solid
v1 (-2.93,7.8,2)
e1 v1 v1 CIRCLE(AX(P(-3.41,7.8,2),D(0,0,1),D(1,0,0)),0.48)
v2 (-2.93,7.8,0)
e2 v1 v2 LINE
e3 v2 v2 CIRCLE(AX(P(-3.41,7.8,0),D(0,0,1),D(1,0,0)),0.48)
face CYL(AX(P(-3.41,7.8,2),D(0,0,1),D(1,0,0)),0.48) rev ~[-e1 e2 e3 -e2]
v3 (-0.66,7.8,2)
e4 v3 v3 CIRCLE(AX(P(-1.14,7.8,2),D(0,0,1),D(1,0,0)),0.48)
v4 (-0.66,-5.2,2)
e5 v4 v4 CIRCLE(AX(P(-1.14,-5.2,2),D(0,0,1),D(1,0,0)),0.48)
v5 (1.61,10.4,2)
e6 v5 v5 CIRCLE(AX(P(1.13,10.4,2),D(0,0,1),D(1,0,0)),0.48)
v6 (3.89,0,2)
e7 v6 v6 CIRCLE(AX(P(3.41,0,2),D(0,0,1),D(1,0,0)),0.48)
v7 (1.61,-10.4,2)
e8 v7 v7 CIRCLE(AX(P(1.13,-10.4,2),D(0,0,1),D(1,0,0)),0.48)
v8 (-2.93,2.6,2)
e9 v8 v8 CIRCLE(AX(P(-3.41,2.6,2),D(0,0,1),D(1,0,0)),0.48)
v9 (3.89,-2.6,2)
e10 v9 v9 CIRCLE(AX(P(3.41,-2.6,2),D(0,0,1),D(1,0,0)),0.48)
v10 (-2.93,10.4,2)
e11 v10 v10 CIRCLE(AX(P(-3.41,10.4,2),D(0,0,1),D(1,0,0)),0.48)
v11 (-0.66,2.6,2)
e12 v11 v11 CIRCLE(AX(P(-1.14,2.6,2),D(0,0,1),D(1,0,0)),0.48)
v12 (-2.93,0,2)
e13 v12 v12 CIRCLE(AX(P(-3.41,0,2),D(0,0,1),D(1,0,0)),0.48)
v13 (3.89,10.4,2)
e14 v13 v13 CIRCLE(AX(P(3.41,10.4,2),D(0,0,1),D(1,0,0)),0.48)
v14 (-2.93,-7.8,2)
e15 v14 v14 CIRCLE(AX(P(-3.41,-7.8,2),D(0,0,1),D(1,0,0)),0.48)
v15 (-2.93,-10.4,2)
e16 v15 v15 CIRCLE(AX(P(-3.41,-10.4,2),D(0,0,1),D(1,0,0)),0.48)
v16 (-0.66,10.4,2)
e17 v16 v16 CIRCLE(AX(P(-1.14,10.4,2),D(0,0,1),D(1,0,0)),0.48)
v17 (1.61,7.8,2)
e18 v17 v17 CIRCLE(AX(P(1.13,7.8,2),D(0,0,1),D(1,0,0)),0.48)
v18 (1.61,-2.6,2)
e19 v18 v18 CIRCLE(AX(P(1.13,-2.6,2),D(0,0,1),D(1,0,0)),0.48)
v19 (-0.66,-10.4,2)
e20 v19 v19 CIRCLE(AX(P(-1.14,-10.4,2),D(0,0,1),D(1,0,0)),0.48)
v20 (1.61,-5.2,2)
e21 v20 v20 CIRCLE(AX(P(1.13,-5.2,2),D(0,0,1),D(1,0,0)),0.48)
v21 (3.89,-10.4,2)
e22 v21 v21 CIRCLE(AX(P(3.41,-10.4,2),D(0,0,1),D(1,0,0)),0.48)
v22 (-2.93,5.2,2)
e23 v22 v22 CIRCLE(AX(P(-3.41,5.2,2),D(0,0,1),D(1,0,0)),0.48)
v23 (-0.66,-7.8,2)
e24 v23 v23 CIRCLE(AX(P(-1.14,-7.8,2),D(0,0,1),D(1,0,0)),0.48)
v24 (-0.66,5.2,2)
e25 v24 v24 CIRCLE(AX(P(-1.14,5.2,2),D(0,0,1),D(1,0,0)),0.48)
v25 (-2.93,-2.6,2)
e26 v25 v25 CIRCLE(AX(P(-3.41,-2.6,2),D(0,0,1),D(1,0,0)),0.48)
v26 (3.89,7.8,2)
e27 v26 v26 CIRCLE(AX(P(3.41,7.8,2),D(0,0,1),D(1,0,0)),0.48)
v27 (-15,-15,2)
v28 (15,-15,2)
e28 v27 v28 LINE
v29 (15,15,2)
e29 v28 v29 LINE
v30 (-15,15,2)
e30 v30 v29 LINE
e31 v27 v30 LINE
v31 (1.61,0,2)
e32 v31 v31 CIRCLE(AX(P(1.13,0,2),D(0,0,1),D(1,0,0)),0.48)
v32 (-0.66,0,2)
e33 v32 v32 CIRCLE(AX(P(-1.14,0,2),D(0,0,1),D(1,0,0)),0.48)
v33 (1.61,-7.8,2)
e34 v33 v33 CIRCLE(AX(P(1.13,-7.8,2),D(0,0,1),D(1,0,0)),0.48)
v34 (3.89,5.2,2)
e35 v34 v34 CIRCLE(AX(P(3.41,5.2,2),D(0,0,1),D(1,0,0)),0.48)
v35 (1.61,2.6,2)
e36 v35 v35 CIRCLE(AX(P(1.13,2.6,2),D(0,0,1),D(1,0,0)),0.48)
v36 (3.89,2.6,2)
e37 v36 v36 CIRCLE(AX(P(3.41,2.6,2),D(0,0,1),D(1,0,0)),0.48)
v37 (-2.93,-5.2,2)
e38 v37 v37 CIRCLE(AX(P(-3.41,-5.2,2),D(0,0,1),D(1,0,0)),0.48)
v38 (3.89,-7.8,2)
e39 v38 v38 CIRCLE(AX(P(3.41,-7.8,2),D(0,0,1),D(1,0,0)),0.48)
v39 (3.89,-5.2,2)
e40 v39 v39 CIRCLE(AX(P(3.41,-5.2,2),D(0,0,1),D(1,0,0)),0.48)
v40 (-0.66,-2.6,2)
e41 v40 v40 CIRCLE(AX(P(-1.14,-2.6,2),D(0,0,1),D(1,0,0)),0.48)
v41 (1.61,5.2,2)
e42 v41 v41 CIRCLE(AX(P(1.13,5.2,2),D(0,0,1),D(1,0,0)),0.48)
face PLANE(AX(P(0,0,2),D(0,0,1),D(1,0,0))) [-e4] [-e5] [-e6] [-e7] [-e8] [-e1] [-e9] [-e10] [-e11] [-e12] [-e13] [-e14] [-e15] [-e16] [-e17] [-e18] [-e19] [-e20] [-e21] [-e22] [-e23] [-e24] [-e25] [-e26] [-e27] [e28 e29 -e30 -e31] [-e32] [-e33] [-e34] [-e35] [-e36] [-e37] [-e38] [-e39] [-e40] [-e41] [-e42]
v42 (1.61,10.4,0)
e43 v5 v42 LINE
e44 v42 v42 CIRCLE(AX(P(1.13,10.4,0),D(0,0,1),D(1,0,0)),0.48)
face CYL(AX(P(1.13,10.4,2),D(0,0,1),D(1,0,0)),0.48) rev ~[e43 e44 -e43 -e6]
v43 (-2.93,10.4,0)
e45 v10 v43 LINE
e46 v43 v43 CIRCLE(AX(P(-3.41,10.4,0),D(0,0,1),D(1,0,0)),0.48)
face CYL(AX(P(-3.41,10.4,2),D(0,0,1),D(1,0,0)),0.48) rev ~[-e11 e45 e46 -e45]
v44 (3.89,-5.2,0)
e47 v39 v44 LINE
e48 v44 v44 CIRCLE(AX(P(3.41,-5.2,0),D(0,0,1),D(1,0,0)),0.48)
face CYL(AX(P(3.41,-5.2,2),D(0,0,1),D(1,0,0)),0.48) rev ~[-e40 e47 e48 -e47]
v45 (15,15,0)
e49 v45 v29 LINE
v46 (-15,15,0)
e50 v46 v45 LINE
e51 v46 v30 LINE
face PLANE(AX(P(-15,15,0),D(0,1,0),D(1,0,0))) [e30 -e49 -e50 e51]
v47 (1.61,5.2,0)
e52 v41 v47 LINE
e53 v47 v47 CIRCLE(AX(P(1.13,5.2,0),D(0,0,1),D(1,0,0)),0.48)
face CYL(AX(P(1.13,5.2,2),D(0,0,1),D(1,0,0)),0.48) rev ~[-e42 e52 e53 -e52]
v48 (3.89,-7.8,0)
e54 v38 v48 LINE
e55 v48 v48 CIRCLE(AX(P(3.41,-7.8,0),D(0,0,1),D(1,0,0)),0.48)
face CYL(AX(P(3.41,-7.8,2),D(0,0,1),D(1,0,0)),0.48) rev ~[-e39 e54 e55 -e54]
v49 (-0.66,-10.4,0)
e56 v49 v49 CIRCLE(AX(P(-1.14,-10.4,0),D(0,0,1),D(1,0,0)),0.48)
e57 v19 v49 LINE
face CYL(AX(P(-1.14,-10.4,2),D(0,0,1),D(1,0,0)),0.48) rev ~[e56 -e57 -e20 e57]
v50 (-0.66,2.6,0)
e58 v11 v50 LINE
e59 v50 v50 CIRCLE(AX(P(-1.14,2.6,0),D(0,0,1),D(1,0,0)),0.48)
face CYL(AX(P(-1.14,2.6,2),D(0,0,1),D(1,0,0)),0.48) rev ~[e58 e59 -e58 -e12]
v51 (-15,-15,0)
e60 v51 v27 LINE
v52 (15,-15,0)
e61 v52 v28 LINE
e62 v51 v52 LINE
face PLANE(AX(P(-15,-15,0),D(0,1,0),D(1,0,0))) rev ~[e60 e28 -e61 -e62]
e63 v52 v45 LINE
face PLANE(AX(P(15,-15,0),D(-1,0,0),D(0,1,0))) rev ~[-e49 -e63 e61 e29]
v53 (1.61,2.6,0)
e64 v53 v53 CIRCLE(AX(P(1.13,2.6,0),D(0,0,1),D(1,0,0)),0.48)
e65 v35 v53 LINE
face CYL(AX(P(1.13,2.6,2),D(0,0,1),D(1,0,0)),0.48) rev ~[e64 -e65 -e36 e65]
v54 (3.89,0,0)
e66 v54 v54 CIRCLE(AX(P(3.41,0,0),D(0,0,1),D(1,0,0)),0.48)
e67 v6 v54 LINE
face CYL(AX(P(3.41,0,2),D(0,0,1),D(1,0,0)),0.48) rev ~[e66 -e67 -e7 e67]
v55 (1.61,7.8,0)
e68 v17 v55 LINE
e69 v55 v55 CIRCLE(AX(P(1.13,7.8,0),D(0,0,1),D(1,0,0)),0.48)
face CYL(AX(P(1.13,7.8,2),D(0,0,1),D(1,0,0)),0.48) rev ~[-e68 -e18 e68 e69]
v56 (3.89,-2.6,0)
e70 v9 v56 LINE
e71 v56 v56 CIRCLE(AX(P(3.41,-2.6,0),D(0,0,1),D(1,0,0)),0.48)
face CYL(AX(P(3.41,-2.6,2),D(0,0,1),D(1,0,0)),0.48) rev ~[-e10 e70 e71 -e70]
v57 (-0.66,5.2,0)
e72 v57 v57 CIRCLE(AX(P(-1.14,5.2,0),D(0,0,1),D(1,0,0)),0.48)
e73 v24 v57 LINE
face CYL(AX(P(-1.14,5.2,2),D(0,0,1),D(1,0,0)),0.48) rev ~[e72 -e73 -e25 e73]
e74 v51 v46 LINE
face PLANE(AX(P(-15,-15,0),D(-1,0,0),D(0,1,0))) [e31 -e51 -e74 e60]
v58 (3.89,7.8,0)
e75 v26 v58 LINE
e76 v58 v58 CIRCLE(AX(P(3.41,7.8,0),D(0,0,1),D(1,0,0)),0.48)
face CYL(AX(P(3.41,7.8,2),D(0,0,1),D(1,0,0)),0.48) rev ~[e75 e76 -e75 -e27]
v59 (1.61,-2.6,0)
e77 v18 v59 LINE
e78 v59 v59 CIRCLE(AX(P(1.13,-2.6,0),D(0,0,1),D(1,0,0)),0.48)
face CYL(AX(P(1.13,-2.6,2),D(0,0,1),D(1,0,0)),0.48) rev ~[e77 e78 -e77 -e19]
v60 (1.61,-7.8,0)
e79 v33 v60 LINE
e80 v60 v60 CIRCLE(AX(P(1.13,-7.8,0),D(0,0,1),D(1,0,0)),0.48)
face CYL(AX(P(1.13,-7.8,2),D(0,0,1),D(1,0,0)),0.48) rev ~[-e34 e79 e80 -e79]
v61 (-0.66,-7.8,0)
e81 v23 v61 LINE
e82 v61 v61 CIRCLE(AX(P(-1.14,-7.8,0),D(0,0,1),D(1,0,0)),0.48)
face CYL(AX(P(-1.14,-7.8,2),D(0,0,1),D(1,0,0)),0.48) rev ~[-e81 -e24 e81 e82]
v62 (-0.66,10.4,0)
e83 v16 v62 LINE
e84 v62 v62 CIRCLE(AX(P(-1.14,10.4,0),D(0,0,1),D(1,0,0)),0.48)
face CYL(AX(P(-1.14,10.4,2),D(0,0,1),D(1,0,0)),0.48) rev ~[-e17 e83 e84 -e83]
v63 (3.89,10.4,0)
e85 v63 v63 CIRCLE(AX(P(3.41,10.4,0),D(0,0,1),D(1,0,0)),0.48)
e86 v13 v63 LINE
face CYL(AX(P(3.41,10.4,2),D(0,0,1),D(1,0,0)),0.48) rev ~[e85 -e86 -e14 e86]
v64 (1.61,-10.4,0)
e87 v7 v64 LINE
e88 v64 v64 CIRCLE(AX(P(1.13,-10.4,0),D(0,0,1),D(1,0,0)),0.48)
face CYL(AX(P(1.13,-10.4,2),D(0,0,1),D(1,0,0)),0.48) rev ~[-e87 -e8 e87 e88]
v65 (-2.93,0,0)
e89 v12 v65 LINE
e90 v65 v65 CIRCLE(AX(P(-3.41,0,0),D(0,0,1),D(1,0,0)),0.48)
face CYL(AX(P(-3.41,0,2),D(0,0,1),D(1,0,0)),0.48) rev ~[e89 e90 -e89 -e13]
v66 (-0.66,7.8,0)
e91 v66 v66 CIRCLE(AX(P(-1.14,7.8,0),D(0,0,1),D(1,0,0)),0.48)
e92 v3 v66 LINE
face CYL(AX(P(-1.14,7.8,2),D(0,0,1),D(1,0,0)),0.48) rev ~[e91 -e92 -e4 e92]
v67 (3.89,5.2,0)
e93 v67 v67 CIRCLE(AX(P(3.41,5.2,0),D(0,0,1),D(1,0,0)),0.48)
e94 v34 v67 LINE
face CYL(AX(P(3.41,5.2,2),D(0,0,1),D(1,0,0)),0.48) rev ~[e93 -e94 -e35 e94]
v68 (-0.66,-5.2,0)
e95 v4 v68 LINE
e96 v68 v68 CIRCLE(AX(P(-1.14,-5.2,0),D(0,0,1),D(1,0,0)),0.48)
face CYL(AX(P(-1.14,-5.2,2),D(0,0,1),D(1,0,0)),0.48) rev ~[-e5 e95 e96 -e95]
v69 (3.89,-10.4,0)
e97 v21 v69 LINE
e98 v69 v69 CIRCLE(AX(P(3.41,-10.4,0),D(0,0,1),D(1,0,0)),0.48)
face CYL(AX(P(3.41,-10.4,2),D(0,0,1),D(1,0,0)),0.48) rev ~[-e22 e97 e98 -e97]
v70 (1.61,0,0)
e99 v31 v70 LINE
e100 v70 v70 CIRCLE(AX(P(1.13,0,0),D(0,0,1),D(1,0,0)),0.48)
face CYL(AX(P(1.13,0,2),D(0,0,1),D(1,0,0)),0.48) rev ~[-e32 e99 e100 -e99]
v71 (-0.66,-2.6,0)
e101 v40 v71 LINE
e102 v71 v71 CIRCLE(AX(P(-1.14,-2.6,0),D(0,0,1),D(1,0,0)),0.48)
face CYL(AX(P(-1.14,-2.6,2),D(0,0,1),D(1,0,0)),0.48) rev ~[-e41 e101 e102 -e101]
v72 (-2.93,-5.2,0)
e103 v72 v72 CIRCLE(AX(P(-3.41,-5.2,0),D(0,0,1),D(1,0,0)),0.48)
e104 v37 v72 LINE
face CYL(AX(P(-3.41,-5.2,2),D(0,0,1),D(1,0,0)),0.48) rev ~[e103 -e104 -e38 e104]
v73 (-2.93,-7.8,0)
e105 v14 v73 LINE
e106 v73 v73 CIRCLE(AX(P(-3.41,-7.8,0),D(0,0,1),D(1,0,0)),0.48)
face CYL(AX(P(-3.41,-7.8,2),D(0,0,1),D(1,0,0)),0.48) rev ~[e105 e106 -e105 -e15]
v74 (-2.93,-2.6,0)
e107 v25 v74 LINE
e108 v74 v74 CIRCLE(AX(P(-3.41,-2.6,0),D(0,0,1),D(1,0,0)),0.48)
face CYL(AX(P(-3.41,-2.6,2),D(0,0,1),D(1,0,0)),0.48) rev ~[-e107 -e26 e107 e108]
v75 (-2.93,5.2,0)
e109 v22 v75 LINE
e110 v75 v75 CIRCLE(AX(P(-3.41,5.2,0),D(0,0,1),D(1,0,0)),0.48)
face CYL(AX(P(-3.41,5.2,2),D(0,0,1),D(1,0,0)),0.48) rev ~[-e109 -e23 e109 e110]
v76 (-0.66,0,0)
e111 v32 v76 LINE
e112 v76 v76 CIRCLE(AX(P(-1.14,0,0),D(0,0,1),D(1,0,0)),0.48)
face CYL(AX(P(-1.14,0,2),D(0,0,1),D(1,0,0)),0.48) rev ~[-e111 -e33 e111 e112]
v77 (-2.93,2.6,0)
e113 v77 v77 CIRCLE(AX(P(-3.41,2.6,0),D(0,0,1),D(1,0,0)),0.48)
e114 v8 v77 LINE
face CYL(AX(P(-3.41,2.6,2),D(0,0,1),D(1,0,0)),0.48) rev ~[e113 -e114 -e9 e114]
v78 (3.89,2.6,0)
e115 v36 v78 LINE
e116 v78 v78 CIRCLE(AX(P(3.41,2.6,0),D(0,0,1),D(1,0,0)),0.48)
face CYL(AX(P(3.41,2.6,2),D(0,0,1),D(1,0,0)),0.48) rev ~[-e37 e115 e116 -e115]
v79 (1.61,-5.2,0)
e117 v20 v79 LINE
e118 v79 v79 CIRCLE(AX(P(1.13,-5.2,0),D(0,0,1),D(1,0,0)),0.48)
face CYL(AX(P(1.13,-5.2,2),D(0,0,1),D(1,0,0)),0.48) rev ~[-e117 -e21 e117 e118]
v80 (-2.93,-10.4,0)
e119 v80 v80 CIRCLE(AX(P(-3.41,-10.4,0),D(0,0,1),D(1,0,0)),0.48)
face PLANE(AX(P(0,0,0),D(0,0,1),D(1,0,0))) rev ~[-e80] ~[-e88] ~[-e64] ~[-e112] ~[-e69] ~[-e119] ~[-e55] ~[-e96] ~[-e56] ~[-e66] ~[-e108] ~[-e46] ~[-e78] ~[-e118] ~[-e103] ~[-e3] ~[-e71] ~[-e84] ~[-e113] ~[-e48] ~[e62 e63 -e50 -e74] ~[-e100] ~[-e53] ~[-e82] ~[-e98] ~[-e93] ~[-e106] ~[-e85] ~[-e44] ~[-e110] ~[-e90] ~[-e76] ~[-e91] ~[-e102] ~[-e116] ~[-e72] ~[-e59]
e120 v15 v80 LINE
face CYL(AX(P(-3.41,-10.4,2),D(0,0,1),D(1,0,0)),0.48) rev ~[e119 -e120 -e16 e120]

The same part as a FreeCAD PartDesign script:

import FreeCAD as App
import Part
import Sketcher
from FreeCAD import Vector

doc = App.newDocument("Part")
body = doc.addObject("PartDesign::Body", "Body")

sketch1 = doc.addObject("Sketcher::SketchObject", "Sketch")
body.addObject(sketch1)
sketch1.AttachmentSupport = (doc.XY_Plane, [""])
sketch1.MapMode = "FlatFace"
sketch1.addGeometry([
    Part.LineSegment(Vector(-15, 15, 0), Vector(-15, -15, 0)),
    Part.LineSegment(Vector(-15, -15, 0), Vector(15, -15, 0)),
    Part.LineSegment(Vector(15, -15, 0), Vector(15, 15, 0)),
    Part.LineSegment(Vector(15, 15, 0), Vector(-15, 15, 0)),
], False)
sketch1.addConstraint([
    Sketcher.Constraint("Coincident", 0, 2, 1, 1),
    Sketcher.Constraint("Coincident", 1, 2, 2, 1),
    Sketcher.Constraint("Coincident", 2, 2, 3, 1),
    Sketcher.Constraint("Coincident", 3, 2, 0, 1),
    Sketcher.Constraint("Vertical", 0),
    Sketcher.Constraint("Horizontal", 1),
    Sketcher.Constraint("Vertical", 2),
    Sketcher.Constraint("Horizontal", 3),
    Sketcher.Constraint("Symmetric", 0, 2, 2, 2, -1, 1),
    Sketcher.Constraint("Equal", 3, 0),
    Sketcher.Constraint("DistanceX", 1, 1, 1, 2, 30.0),
])
pad1 = doc.addObject("PartDesign::Pad", "Pad")
body.addObject(pad1)
pad1.Profile = sketch1
pad1.Length = 2

sketch2 = doc.addObject("Sketcher::SketchObject", "Sketch001")
body.addObject(sketch2)
sketch2.AttachmentSupport = (doc.XY_Plane, [""])
sketch2.MapMode = "FlatFace"
sketch2.AttachmentOffset = App.Placement(Vector(0, 0, 2), App.Rotation())
sketch2.addGeometry([
    Part.Circle(Vector(-3.41, -10.4, 0), Vector(0, 0, 1), 0.48),
    Part.Circle(Vector(-3.41, -7.8, 0), Vector(0, 0, 1), 0.48),
    Part.Circle(Vector(-3.41, -5.2, 0), Vector(0, 0, 1), 0.48),
    Part.Circle(Vector(-3.41, -2.6, 0), Vector(0, 0, 1), 0.48),
    Part.Circle(Vector(-3.41, 0, 0), Vector(0, 0, 1), 0.48),
    Part.Circle(Vector(-3.41, 2.6, 0), Vector(0, 0, 1), 0.48),
    Part.Circle(Vector(-3.41, 5.2, 0), Vector(0, 0, 1), 0.48),
    Part.Circle(Vector(-3.41, 7.8, 0), Vector(0, 0, 1), 0.48),
    Part.Circle(Vector(-3.41, 10.4, 0), Vector(0, 0, 1), 0.48),
    Part.Circle(Vector(-1.14, -10.4, 0), Vector(0, 0, 1), 0.48),
    Part.Circle(Vector(-1.14, -7.8, 0), Vector(0, 0, 1), 0.48),
    Part.Circle(Vector(-1.14, -5.2, 0), Vector(0, 0, 1), 0.48),
    Part.Circle(Vector(-1.14, -2.6, 0), Vector(0, 0, 1), 0.48),
    Part.Circle(Vector(-1.14, 0, 0), Vector(0, 0, 1), 0.48),
    Part.Circle(Vector(-1.14, 2.6, 0), Vector(0, 0, 1), 0.48),
    Part.Circle(Vector(-1.14, 5.2, 0), Vector(0, 0, 1), 0.48),
    Part.Circle(Vector(-1.14, 7.8, 0), Vector(0, 0, 1), 0.48),
    Part.Circle(Vector(-1.14, 10.4, 0), Vector(0, 0, 1), 0.48),
    Part.Circle(Vector(1.13, -10.4, 0), Vector(0, 0, 1), 0.48),
    Part.Circle(Vector(1.13, -7.8, 0), Vector(0, 0, 1), 0.48),
    Part.Circle(Vector(1.13, -5.2, 0), Vector(0, 0, 1), 0.48),
    Part.Circle(Vector(1.13, -2.6, 0), Vector(0, 0, 1), 0.48),
    Part.Circle(Vector(1.13, 0, 0), Vector(0, 0, 1), 0.48),
    Part.Circle(Vector(1.13, 2.6, 0), Vector(0, 0, 1), 0.48),
    Part.Circle(Vector(1.13, 5.2, 0), Vector(0, 0, 1), 0.48),
    Part.Circle(Vector(1.13, 7.8, 0), Vector(0, 0, 1), 0.48),
    Part.Circle(Vector(1.13, 10.4, 0), Vector(0, 0, 1), 0.48),
    Part.Circle(Vector(3.41, -10.4, 0), Vector(0, 0, 1), 0.48),
    Part.Circle(Vector(3.41, -7.8, 0), Vector(0, 0, 1), 0.48),
    Part.Circle(Vector(3.41, -5.2, 0), Vector(0, 0, 1), 0.48),
    Part.Circle(Vector(3.41, -2.6, 0), Vector(0, 0, 1), 0.48),
    Part.Circle(Vector(3.41, 0, 0), Vector(0, 0, 1), 0.48),
    Part.Circle(Vector(3.41, 2.6, 0), Vector(0, 0, 1), 0.48),
    Part.Circle(Vector(3.41, 5.2, 0), Vector(0, 0, 1), 0.48),
    Part.Circle(Vector(3.41, 7.8, 0), Vector(0, 0, 1), 0.48),
    Part.Circle(Vector(3.41, 10.4, 0), Vector(0, 0, 1), 0.48),
], False)
sketch2.addConstraint([
    Sketcher.Constraint("Equal", 0, 1),
    Sketcher.Constraint("Equal", 1, 2),
    Sketcher.Constraint("Equal", 2, 3),
    Sketcher.Constraint("Equal", 3, 4),
    Sketcher.Constraint("Equal", 4, 5),
    Sketcher.Constraint("Equal", 5, 6),
    Sketcher.Constraint("Equal", 6, 7),
    Sketcher.Constraint("Equal", 7, 8),
    Sketcher.Constraint("Equal", 8, 9),
    Sketcher.Constraint("Equal", 9, 10),
    Sketcher.Constraint("Equal", 10, 11),
    Sketcher.Constraint("Equal", 11, 12),
    Sketcher.Constraint("Equal", 12, 13),
    Sketcher.Constraint("Equal", 13, 14),
    Sketcher.Constraint("Equal", 14, 15),
    Sketcher.Constraint("Equal", 15, 16),
    Sketcher.Constraint("Equal", 16, 17),
    Sketcher.Constraint("Equal", 17, 18),
    Sketcher.Constraint("Equal", 18, 19),
    Sketcher.Constraint("Equal", 19, 20),
    Sketcher.Constraint("Equal", 20, 21),
    Sketcher.Constraint("Equal", 21, 22),
    Sketcher.Constraint("Equal", 22, 23),
    Sketcher.Constraint("Equal", 23, 24),
    Sketcher.Constraint("Equal", 24, 25),
    Sketcher.Constraint("Equal", 25, 26),
    Sketcher.Constraint("Equal", 26, 27),
    Sketcher.Constraint("Equal", 27, 28),
    Sketcher.Constraint("Equal", 28, 29),
    Sketcher.Constraint("Equal", 29, 30),
    Sketcher.Constraint("Equal", 30, 31),
    Sketcher.Constraint("Equal", 31, 32),
    Sketcher.Constraint("Equal", 32, 33),
    Sketcher.Constraint("Equal", 33, 34),
    Sketcher.Constraint("Equal", 34, 35),
    Sketcher.Constraint("Symmetric", 8, 3, 27, 3, -1, 1),
    Sketcher.Constraint("Symmetric", 7, 3, 28, 3, -1, 1),
    Sketcher.Constraint("Symmetric", 6, 3, 29, 3, -1, 1),
    Sketcher.Constraint("Symmetric", 5, 3, 30, 3, -1, 1),
    Sketcher.Constraint("Symmetric", 4, 3, 31, 3, -1, 1),
    Sketcher.Constraint("Symmetric", 3, 3, 32, 3, -1, 1),
    Sketcher.Constraint("Symmetric", 2, 3, 33, 3, -1, 1),
    Sketcher.Constraint("Symmetric", 1, 3, 34, 3, -1, 1),
    Sketcher.Constraint("Symmetric", 0, 3, 35, 3, -1, 1),
    Sketcher.Constraint("Symmetric", 0, 3, 27, 3, -2),
    Sketcher.Constraint("Symmetric", 1, 3, 28, 3, -2),
    Sketcher.Constraint("Symmetric", 2, 3, 29, 3, -2),
    Sketcher.Constraint("Symmetric", 3, 3, 30, 3, -2),
    Sketcher.Constraint("Symmetric", 12, 3, 14, 3, -1),
    Sketcher.Constraint("Symmetric", 11, 3, 15, 3, -1),
    Sketcher.Constraint("Symmetric", 10, 3, 16, 3, -1),
    Sketcher.Constraint("Symmetric", 9, 3, 17, 3, -1),
    Sketcher.Constraint("Symmetric", 21, 3, 23, 3, -1),
    Sketcher.Constraint("Symmetric", 20, 3, 24, 3, -1),
    Sketcher.Constraint("Symmetric", 19, 3, 25, 3, -1),
    Sketcher.Constraint("Symmetric", 18, 3, 26, 3, -1),
    Sketcher.Constraint("PointOnObject", 4, 3, -1),
    Sketcher.Constraint("PointOnObject", 13, 3, -1),
    Sketcher.Constraint("PointOnObject", 22, 3, -1),
    Sketcher.Constraint("Horizontal", 0, 3, 9, 3),
    Sketcher.Constraint("Horizontal", 1, 3, 10, 3),
    Sketcher.Constraint("Horizontal", 2, 3, 11, 3),
    Sketcher.Constraint("Horizontal", 3, 3, 12, 3),
    Sketcher.Constraint("Horizontal", 9, 3, 18, 3),
    Sketcher.Constraint("Horizontal", 10, 3, 19, 3),
    Sketcher.Constraint("Horizontal", 11, 3, 20, 3),
    Sketcher.Constraint("Horizontal", 12, 3, 21, 3),
    Sketcher.Constraint("Vertical", 0, 3, 1, 3),
    Sketcher.Constraint("Vertical", 1, 3, 2, 3),
    Sketcher.Constraint("Vertical", 2, 3, 3, 3),
    Sketcher.Constraint("Vertical", 3, 3, 4, 3),
    Sketcher.Constraint("Vertical", 9, 3, 10, 3),
    Sketcher.Constraint("Vertical", 10, 3, 11, 3),
    Sketcher.Constraint("Vertical", 11, 3, 12, 3),
    Sketcher.Constraint("Vertical", 12, 3, 13, 3),
    Sketcher.Constraint("Vertical", 18, 3, 19, 3),
    Sketcher.Constraint("Vertical", 19, 3, 20, 3),
    Sketcher.Constraint("Vertical", 20, 3, 21, 3),
    Sketcher.Constraint("Vertical", 21, 3, 22, 3),
    Sketcher.Constraint("Diameter", 0, 0.96),
    Sketcher.Constraint("DistanceY", 0, 3, 5, 3, 13.0),
    Sketcher.Constraint("DistanceY", 1, 3, 6, 3, 13.0),
    Sketcher.Constraint("DistanceY", 0, 3, -1, 1, 10.4),
    Sketcher.Constraint("DistanceY", 1, 3, -1, 1, 7.8),
    Sketcher.Constraint("DistanceX", 0, 3, -1, 1, 3.41),
    Sketcher.Constraint("DistanceX", 9, 3, -1, 1, 1.14),
    Sketcher.Constraint("DistanceX", -1, 1, 18, 3, 1.13),
])
pocket1 = doc.addObject("PartDesign::Pocket", "Pocket")
body.addObject(pocket1)
pocket1.Profile = sketch2
pocket1.Length = 10

doc.recompute()
